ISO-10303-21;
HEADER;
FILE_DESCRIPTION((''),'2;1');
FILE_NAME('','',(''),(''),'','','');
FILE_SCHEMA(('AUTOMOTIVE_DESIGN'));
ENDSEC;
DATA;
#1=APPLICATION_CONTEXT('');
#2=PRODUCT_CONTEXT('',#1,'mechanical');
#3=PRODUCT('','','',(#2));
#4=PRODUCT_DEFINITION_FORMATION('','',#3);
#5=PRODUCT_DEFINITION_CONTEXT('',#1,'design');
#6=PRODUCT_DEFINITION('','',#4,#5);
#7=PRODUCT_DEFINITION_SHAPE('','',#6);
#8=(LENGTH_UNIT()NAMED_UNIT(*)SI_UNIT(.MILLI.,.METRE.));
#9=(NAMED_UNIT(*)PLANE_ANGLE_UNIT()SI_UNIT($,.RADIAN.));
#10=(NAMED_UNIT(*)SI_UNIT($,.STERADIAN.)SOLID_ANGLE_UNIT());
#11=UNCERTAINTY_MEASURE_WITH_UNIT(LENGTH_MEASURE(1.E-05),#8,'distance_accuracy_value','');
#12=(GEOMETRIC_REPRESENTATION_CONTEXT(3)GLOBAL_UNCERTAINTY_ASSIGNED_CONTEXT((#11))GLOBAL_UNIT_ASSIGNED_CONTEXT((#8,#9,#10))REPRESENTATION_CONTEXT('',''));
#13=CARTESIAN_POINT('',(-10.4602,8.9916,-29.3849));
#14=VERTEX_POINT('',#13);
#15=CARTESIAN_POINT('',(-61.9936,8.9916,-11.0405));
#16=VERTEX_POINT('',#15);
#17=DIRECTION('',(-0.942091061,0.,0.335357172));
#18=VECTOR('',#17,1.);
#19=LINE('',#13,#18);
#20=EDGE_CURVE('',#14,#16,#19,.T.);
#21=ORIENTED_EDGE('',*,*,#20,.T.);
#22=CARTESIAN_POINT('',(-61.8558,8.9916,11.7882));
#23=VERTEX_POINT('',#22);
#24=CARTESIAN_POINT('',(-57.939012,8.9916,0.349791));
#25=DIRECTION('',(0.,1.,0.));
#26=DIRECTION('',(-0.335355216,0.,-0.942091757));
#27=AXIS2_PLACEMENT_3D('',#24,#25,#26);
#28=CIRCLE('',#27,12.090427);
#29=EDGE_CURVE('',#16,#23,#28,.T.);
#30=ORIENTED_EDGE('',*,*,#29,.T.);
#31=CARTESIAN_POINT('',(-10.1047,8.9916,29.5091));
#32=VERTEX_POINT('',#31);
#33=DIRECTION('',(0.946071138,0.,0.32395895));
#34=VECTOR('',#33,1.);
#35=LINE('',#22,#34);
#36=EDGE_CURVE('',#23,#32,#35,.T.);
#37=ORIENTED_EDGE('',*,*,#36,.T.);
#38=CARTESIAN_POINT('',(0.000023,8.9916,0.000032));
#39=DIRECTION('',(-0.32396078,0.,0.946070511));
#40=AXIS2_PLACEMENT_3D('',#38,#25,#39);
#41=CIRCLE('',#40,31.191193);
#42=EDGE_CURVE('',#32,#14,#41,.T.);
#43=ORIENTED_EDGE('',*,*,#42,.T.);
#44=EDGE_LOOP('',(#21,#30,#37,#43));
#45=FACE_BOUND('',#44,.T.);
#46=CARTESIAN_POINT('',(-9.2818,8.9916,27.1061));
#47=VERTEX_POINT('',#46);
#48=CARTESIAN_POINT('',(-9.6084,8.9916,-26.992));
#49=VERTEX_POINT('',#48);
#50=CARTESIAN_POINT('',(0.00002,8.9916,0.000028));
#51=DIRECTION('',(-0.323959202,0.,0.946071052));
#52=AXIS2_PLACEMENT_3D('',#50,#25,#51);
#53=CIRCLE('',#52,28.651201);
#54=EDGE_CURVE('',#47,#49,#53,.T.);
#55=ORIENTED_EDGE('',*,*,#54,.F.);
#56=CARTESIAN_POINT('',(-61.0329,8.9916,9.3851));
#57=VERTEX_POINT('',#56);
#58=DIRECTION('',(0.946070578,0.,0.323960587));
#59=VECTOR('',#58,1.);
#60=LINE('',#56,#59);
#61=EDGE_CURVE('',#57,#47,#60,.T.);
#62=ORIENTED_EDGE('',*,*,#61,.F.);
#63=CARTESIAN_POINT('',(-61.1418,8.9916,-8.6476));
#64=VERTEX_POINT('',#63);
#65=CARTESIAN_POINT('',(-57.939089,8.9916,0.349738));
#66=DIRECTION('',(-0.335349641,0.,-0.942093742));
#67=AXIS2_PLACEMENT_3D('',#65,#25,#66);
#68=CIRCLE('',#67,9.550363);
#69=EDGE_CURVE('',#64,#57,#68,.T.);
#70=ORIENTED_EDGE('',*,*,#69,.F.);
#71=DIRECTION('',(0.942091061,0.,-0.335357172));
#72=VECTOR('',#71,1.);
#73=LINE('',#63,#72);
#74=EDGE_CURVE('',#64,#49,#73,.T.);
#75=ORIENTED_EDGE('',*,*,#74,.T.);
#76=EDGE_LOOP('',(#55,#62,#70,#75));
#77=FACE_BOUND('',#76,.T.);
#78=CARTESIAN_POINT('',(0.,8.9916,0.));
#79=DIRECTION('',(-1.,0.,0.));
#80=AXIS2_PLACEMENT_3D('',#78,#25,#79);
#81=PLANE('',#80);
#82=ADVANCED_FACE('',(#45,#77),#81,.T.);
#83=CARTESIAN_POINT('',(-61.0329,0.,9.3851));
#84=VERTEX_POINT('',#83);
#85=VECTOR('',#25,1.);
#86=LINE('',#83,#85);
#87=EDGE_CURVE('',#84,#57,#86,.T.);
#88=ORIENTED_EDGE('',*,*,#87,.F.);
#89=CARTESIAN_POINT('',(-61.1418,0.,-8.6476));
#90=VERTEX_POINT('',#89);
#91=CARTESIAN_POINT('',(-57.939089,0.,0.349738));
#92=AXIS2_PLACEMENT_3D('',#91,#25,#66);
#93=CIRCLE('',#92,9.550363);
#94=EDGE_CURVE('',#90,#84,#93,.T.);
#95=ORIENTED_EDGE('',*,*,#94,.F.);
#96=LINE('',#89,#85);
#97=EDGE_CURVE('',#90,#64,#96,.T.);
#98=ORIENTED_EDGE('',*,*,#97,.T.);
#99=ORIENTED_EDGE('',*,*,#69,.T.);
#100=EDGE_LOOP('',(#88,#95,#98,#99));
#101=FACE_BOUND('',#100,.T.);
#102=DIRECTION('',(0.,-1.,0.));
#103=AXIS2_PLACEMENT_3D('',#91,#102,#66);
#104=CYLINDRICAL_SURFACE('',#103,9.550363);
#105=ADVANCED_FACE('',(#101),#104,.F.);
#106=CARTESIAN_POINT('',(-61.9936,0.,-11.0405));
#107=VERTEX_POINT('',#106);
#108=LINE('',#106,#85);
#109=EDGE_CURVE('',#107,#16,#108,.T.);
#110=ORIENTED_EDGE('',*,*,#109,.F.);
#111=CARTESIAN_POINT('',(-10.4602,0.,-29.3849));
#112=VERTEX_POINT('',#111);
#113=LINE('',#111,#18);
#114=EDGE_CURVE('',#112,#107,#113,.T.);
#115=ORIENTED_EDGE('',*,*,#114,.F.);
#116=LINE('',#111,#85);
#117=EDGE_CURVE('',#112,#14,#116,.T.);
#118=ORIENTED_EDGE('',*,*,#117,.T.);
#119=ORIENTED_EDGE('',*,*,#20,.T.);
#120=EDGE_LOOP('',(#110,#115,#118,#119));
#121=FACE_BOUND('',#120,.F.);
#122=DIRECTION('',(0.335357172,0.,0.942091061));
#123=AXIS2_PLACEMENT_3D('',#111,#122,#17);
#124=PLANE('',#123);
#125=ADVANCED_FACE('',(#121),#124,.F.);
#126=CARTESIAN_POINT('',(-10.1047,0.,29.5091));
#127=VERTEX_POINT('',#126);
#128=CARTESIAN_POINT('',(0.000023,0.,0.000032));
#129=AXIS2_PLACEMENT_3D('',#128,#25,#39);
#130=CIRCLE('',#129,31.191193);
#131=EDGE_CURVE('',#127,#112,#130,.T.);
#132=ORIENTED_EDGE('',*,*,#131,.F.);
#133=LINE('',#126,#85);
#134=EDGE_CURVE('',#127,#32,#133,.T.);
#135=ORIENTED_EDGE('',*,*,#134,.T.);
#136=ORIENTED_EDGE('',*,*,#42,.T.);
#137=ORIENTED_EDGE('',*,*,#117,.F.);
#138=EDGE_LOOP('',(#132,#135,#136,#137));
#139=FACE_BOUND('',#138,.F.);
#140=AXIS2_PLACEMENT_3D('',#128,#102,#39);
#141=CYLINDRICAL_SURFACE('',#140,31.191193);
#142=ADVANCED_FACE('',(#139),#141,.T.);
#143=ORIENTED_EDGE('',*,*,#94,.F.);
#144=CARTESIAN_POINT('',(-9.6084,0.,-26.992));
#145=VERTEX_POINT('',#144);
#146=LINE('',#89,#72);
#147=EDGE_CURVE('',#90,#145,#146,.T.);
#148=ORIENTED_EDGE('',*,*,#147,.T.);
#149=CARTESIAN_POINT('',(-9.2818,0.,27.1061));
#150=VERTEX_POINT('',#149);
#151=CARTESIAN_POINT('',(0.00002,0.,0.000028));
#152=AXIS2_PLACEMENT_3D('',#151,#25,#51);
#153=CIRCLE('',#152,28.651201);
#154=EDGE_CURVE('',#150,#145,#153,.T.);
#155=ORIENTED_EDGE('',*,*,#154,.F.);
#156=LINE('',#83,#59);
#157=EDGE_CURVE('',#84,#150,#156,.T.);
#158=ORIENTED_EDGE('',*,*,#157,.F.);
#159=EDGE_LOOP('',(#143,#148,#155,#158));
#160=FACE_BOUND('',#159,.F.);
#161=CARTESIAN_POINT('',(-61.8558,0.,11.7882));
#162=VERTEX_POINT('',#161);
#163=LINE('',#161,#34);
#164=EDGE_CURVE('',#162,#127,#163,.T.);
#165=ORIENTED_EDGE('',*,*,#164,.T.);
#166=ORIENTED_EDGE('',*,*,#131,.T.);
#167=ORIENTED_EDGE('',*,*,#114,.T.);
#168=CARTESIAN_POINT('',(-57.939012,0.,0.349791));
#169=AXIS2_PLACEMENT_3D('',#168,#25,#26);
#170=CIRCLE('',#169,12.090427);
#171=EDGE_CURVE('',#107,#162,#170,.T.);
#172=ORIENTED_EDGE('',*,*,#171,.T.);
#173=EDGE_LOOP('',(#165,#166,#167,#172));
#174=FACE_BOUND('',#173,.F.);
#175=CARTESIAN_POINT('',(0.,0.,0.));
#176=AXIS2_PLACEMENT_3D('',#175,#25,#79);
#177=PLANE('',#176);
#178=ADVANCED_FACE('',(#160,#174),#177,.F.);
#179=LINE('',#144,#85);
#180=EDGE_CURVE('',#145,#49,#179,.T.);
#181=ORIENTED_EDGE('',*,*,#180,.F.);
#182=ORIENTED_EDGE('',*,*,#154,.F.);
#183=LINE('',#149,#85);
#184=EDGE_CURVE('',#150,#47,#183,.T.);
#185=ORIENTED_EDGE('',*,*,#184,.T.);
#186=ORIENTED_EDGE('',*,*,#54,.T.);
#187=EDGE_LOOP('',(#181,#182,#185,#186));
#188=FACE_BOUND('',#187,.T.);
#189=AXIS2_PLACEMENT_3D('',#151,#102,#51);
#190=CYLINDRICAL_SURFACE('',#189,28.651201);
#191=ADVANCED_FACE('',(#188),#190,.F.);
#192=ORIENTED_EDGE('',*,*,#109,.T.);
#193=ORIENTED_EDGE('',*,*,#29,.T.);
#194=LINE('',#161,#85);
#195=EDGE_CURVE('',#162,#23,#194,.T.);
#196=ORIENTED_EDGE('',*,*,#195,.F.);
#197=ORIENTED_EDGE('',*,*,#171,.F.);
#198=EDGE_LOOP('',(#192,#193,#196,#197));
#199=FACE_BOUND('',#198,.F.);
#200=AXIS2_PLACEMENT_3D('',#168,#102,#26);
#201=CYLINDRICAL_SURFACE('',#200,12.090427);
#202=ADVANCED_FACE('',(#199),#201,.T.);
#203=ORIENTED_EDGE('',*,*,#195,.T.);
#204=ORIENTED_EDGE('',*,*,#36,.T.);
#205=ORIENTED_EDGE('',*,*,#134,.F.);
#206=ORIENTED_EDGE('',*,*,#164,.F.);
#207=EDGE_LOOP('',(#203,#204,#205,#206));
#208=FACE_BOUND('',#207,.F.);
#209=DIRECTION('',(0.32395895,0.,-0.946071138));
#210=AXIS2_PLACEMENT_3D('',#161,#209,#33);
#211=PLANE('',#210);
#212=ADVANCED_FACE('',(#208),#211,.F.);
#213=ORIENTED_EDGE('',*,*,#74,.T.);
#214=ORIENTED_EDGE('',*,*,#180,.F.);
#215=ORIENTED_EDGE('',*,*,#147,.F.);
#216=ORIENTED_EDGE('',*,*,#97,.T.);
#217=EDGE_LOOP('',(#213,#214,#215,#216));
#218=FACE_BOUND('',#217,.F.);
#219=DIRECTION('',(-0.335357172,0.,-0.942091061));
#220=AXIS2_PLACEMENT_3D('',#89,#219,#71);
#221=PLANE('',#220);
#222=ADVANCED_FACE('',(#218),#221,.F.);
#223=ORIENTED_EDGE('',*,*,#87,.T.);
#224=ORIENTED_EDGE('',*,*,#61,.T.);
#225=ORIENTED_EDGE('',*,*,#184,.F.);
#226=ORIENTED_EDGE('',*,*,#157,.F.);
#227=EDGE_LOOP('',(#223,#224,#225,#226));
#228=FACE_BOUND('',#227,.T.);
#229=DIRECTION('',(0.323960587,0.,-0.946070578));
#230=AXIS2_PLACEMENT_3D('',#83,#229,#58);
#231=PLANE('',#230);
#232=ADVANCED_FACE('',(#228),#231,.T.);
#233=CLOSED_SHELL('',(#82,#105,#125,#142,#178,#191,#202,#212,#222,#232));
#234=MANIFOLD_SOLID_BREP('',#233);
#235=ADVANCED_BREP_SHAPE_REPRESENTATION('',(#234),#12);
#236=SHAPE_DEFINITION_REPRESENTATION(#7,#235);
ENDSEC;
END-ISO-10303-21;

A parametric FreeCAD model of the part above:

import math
import FreeCAD as App
import Part
import Sketcher
from FreeCAD import Vector
Q = App.Units.Quantity

doc = App.newDocument("Part")
body = doc.addObject("PartDesign::Body", "Body")

sketch1 = body.newObject("Sketcher::SketchObject", "Sketch")
sketch1.AttachmentSupport = (doc.getObject("XZ_Plane"), [""])
sketch1.MapMode = "FlatFace"
sketch1.addGeometry([
    Part.ArcOfCircle(Part.Circle(Vector(0, 0, 0), Vector(0, 0, 1), 31.191216), math.radians(-109.594303), math.radians(108.902567)),
    Part.LineSegment(Vector(-10.4602, -29.3849, 0), Vector(-61.9936, -11.0405, 0)),
    Part.ArcOfCircle(Part.Circle(Vector(-57.939, 0.3498, 0), Vector(0, 0, 1), 12.090439), math.radians(108.902512), math.radians(250.405819)),
    Part.LineSegment(Vector(-61.8558, 11.7882, 0), Vector(-10.1047, 29.5091, 0)),
    Part.LineSegment(Vector(-9.2818, 27.1061, 0), Vector(-61.0329, 9.3851, 0)),
    Part.ArcOfCircle(Part.Circle(Vector(-57.939, 0.3498, 0), Vector(0, 0, 1), 9.5504), math.radians(108.902414), math.radians(250.405821)),
    Part.LineSegment(Vector(-61.1418, -8.6476, 0), Vector(-9.6084, -26.992, 0)),
    Part.ArcOfCircle(Part.Circle(Vector(0, 0, 0), Vector(0, 0, 1), 28.6512), math.radians(-109.594313), math.radians(108.902474)),
], False)
sketch1.addConstraint([
    Sketcher.Constraint("Coincident", 0, 1, 1, 1),
    Sketcher.Constraint("Coincident", 1, 2, 2, 2),
    Sketcher.Constraint("Coincident", 2, 1, 3, 1),
    Sketcher.Constraint("Coincident", 3, 2, 0, 2),
    Sketcher.Constraint("Coincident", 4, 2, 5, 1),
    Sketcher.Constraint("Coincident", 5, 2, 6, 1),
    Sketcher.Constraint("Coincident", 6, 2, 7, 1),
    Sketcher.Constraint("Coincident", 7, 2, 4, 1),
    Sketcher.Constraint("Coincident", 0, 3, -1, 1),
    Sketcher.Constraint("Coincident", 7, 3, -1, 1),
    Sketcher.Constraint("Coincident", 5, 3, 2, 3),
    Sketcher.Constraint("Radius", 5, Q("0.376 in")),
    Sketcher.Constraint("Radius", 7, Q("1.128 in")),
    Sketcher.Constraint("Radius", 0, Q("1.228 in")),
    Sketcher.Constraint("Radius", 2, Q("0.476 in")),
    Sketcher.Constraint("DistanceY", 2, 3, 3, 2, Q("1.148 in")),
    Sketcher.Constraint("DistanceY", 6, 2, 1, 2, Q("0.628 in")),
    Sketcher.Constraint("DistanceY", 0, 1, -1, 1, Q("1.1569 in")),
    Sketcher.Constraint("DistanceX", 1, 2, -1, 1, Q("2.4407 in")),
    Sketcher.Constraint("DistanceY", -1, 1, 2, 1, Q("0.4641 in")),
    Sketcher.Constraint("DistanceY", -1, 1, 4, 2, Q("0.3695 in")),
    Sketcher.Constraint("DistanceX", 2, 1, 2, 3, Q("0.1542 in")),
    Sketcher.Constraint("DistanceY", 1, 2, 5, 2, Q("0.0942 in")),
    Sketcher.Constraint("DistanceX", 5, 2, 2, 3, Q("0.1261 in")),
    Sketcher.Constraint("DistanceX", 3, 2, 7, 2, Q("0.0324 in")),
])
pad1 = body.newObject("PartDesign::Pad", "Pad")
pad1.Profile = sketch1
pad1.Length = Q("0.354 in")
pad1.Reversed = True

doc.recompute()
